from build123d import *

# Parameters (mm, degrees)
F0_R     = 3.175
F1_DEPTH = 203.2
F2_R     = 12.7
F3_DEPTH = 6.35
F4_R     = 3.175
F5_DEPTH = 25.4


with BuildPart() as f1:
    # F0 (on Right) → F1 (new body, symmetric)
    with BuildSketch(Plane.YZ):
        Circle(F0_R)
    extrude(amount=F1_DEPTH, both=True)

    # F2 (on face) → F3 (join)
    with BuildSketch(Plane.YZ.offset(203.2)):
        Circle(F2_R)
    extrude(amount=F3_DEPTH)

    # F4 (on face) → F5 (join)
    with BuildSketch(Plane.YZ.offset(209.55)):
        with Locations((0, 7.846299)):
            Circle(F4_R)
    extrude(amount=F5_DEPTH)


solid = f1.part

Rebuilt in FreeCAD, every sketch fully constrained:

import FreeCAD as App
import Part
import Sketcher
Q = App.Units.Quantity

doc = App.newDocument("Part")
body = doc.addObject("PartDesign::Body", "Body")

sketch1 = body.newObject("Sketcher::SketchObject", "Sketch")
sketch1.AttachmentSupport = (doc.getObject("YZ_Plane"), [""])
sketch1.MapMode = "FlatFace"
sketch1.addGeometry(Part.Circle(App.Vector(0, 0, 0), App.Vector(0, 0, 1), 3.175), False)
sketch1.addConstraint([
    Sketcher.Constraint("Coincident", 0, 3, -1, 1),
    Sketcher.Constraint("Diameter", 0, Q("0.25 in")),
])
pad1 = body.newObject("PartDesign::Pad", "Pad")
pad1.Profile = sketch1
pad1.Length = Q("16 in")
pad1.Midplane = True

sketch2 = body.newObject("Sketcher::SketchObject", "Sketch001")
sketch2.AttachmentSupport = (doc.getObject("YZ_Plane"), [""])
sketch2.MapMode = "FlatFace"
sketch2.AttachmentOffset = App.Placement(App.Vector(0, 0, 8 * 25.4), App.Rotation())
sketch2.addGeometry(Part.Circle(App.Vector(0, 0, 0), App.Vector(0, 0, 1), 12.7), False)
sketch2.addConstraint([
    Sketcher.Constraint("Coincident", 0, 3, -1, 1),
    Sketcher.Constraint("Diameter", 0, Q("1 in")),
])
pad2 = body.newObject("PartDesign::Pad", "Pad001")
pad2.Profile = sketch2
pad2.Length = Q("0.25 in")

sketch3 = body.newObject("Sketcher::SketchObject", "Sketch002")
sketch3.AttachmentSupport = (doc.getObject("YZ_Plane"), [""])
sketch3.MapMode = "FlatFace"
sketch3.AttachmentOffset = App.Placement(App.Vector(0, 0, 8.25 * 25.4), App.Rotation())
sketch3.addGeometry(Part.Circle(App.Vector(0, 7.846299, 0), App.Vector(0, 0, 1), 3.175), False)
sketch3.addConstraint([
    Sketcher.Constraint("PointOnObject", 0, 3, -2),
    Sketcher.Constraint("Diameter", 0, Q("0.25 in")),
    Sketcher.Constraint("DistanceY", -1, 1, 0, 3, Q("7.846299 mm")),
])
pad3 = body.newObject("PartDesign::Pad", "Pad002")
pad3.Profile = sketch3
pad3.Length = Q("1 in")

doc.recompute()
